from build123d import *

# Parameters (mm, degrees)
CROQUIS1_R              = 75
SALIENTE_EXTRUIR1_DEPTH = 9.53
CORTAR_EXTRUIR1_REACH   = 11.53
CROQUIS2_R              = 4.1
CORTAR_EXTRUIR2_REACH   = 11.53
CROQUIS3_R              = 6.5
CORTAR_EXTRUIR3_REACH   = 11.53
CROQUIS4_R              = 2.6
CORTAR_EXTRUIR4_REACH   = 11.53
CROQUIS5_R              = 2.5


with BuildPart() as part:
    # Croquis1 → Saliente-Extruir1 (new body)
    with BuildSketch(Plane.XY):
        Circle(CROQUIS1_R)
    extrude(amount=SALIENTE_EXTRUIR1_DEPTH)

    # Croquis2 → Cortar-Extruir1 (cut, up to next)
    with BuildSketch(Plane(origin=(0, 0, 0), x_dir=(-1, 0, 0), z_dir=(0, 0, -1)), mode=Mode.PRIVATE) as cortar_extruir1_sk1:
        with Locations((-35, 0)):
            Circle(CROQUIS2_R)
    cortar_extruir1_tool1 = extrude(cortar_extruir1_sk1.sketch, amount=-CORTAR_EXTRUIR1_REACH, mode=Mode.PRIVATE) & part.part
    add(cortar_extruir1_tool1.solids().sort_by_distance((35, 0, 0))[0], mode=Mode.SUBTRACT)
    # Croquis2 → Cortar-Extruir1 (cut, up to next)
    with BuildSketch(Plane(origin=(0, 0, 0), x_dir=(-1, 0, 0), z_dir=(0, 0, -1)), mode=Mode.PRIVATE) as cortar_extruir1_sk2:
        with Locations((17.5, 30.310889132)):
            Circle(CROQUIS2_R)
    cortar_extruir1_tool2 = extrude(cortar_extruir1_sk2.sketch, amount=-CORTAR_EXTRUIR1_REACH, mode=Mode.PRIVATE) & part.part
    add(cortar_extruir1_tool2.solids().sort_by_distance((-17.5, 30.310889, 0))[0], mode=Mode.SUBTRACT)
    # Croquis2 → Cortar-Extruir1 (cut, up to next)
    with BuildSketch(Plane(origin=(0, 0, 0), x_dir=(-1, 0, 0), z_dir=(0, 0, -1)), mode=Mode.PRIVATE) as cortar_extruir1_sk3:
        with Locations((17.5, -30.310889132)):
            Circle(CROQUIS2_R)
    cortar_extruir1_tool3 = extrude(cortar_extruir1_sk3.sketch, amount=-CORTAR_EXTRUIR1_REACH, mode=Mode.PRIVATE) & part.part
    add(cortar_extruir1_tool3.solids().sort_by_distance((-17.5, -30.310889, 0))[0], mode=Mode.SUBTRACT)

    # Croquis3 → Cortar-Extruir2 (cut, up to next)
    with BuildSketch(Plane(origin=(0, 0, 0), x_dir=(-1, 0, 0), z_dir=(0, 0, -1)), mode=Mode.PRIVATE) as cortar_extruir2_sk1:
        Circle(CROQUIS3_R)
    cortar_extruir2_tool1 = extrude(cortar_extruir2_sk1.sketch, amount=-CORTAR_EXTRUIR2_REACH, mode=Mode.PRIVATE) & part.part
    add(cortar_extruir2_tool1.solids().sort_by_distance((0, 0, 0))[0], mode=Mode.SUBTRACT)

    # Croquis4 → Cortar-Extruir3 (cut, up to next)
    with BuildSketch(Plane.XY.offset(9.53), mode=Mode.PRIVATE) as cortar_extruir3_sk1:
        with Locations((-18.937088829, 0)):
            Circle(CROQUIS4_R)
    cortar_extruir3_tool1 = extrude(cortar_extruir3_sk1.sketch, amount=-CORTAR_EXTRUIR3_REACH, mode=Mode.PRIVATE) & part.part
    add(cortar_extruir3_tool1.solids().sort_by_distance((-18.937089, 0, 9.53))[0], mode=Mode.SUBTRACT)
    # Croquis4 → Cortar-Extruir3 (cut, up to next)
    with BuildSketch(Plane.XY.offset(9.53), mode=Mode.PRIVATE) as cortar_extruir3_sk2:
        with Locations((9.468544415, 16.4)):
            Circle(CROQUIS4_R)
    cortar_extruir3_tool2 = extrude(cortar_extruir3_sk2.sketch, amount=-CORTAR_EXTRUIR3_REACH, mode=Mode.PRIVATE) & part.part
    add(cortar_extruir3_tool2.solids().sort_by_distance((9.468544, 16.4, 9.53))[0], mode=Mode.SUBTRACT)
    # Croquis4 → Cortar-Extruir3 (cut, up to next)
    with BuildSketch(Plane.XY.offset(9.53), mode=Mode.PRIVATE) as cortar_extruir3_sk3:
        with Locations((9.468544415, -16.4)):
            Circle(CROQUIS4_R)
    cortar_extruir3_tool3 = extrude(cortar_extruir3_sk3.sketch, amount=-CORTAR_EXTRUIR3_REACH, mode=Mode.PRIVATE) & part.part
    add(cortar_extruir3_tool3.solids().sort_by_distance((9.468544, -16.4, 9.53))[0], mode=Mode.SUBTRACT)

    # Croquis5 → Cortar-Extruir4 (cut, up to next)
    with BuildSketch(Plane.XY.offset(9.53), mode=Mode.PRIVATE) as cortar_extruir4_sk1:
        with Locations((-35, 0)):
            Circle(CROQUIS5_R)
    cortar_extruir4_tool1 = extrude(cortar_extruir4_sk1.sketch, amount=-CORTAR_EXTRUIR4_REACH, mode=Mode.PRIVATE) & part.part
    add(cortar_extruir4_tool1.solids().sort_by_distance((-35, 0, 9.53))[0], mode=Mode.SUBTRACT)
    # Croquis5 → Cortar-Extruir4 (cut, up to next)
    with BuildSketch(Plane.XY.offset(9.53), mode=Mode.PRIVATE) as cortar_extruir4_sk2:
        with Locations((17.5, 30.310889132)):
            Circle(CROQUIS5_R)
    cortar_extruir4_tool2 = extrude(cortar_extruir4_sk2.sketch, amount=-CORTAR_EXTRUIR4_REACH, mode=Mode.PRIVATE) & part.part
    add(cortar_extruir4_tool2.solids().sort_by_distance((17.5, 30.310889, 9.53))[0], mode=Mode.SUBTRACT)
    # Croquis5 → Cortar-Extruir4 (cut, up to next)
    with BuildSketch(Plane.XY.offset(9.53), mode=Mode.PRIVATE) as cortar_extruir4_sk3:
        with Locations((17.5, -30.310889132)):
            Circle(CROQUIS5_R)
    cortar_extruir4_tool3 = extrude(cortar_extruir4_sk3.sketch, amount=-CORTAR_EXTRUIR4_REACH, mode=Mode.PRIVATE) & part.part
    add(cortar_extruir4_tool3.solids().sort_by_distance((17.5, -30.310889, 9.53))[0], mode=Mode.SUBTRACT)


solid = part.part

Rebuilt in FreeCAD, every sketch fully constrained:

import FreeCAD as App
import Part
import Sketcher
Q = App.Units.Quantity

doc = App.newDocument("Part")
body = doc.addObject("PartDesign::Body", "Body")

# Sketch on XY plane
sketch1 = body.newObject("Sketcher::SketchObject", "Sketch")
sketch1.AttachmentSupport = (doc.getObject("XY_Plane"), [""])
sketch1.MapMode = "FlatFace"
sketch1.addGeometry(Part.Circle(App.Vector(0, 0, 0), App.Vector(0, 0, 1), 75), False)
sketch1.addConstraint([
    Sketcher.Constraint("Coincident", 0, 3, -1, 1),
    Sketcher.Constraint("Diameter", 0, Q("150 mm")),
])
pad1 = body.newObject("PartDesign::Pad", "Pad")
pad1.Profile = sketch1
pad1.Length = 9.53

# Sketch on XY plane
sketch2 = body.newObject("Sketcher::SketchObject", "Sketch001")
sketch2.AttachmentSupport = (doc.getObject("XY_Plane"), [""])
sketch2.MapMode = "FlatFace"
sketch2.addGeometry(Part.Circle(App.Vector(35, 0, 0), App.Vector(0, 0, 1), 4.1), False)
sketch2.addConstraint([
    Sketcher.Constraint("PointOnObject", 0, 3, -1),
    Sketcher.Constraint("Diameter", 0, Q("8.2 mm")),
    Sketcher.Constraint("DistanceX", -1, 1, 0, 3, Q("35 mm")),
])
pocket1 = body.newObject("PartDesign::Pocket", "Pocket")
pocket1.Profile = sketch2
pocket1.Type = "UpToFirst"
pocket1.Reversed = True

# Sketch on XY plane
sketch3 = body.newObject("Sketcher::SketchObject", "Sketch002")
sketch3.AttachmentSupport = (doc.getObject("XY_Plane"), [""])
sketch3.MapMode = "FlatFace"
sketch3.addGeometry(Part.Circle(App.Vector(-17.5, 30.3, 0), App.Vector(0, 0, 1), 4.1), False)
sketch3.addConstraint([
    Sketcher.Constraint("Diameter", 0, Q("8.2 mm")),
    Sketcher.Constraint("DistanceX", 0, 3, -1, 1, Q("17.5 mm")),
    Sketcher.Constraint("DistanceY", -1, 1, 0, 3, Q("30.310889 mm")),
])
pocket2 = body.newObject("PartDesign::Pocket", "Pocket001")
pocket2.Profile = sketch3
pocket2.Type = "UpToFirst"
pocket2.Reversed = True

# Sketch on XY plane
sketch4 = body.newObject("Sketcher::SketchObject", "Sketch003")
sketch4.AttachmentSupport = (doc.getObject("XY_Plane"), [""])
sketch4.MapMode = "FlatFace"
sketch4.addGeometry(Part.Circle(App.Vector(-17.5, -30.3, 0), App.Vector(0, 0, 1), 4.1), False)
sketch4.addConstraint([
    Sketcher.Constraint("Diameter", 0, Q("8.2 mm")),
    Sketcher.Constraint("DistanceX", 0, 3, -1, 1, Q("17.5 mm")),
    Sketcher.Constraint("DistanceY", 0, 3, -1, 1, Q("30.310889 mm")),
])
pocket3 = body.newObject("PartDesign::Pocket", "Pocket002")
pocket3.Profile = sketch4
pocket3.Type = "UpToFirst"
pocket3.Reversed = True

# Sketch on XY plane
sketch5 = body.newObject("Sketcher::SketchObject", "Sketch004")
sketch5.AttachmentSupport = (doc.getObject("XY_Plane"), [""])
sketch5.MapMode = "FlatFace"
sketch5.addGeometry(Part.Circle(App.Vector(0, 0, 0), App.Vector(0, 0, 1), 6), False)
sketch5.addConstraint([
    Sketcher.Constraint("Coincident", 0, 3, -1, 1),
    Sketcher.Constraint("Diameter", 0, Q("13 mm")),
])
pocket4 = body.newObject("PartDesign::Pocket", "Pocket003")
pocket4.Profile = sketch5
pocket4.Type = "UpToFirst"
pocket4.Reversed = True

# Sketch on XY plane
sketch6 = body.newObject("Sketcher::SketchObject", "Sketch005")
sketch6.AttachmentSupport = (doc.getObject("XY_Plane"), [""])
sketch6.MapMode = "FlatFace"
sketch6.AttachmentOffset = App.Placement(App.Vector(0, 0, 9.53), App.Rotation())
sketch6.addGeometry(Part.Circle(App.Vector(-18.9, 0, 0), App.Vector(0, 0, 1), 2.6), False)
sketch6.addConstraint([
    Sketcher.Constraint("PointOnObject", 0, 3, -1),
    Sketcher.Constraint("Diameter", 0, Q("5.2 mm")),
    Sketcher.Constraint("DistanceX", 0, 3, -1, 1, Q("18.937089 mm")),
])
pocket5 = body.newObject("PartDesign::Pocket", "Pocket004")
pocket5.Profile = sketch6
pocket5.Type = "UpToFirst"

# Sketch on XY plane
sketch7 = body.newObject("Sketcher::SketchObject", "Sketch006")
sketch7.AttachmentSupport = (doc.getObject("XY_Plane"), [""])
sketch7.MapMode = "FlatFace"
sketch7.AttachmentOffset = App.Placement(App.Vector(0, 0, 9.53), App.Rotation())
sketch7.addGeometry(Part.Circle(App.Vector(9.5, 16.4, 0), App.Vector(0, 0, 1), 2.6), False)
sketch7.addConstraint([
    Sketcher.Constraint("Diameter", 0, Q("5.2 mm")),
    Sketcher.Constraint("DistanceY", -1, 1, 0, 3, Q("16.4 mm")),
    Sketcher.Constraint("DistanceX", -1, 1, 0, 3, Q("9.468544 mm")),
])
pocket6 = body.newObject("PartDesign::Pocket", "Pocket005")
pocket6.Profile = sketch7
pocket6.Type = "UpToFirst"

# Sketch on XY plane
sketch8 = body.newObject("Sketcher::SketchObject", "Sketch007")
sketch8.AttachmentSupport = (doc.getObject("XY_Plane"), [""])
sketch8.MapMode = "FlatFace"
sketch8.AttachmentOffset = App.Placement(App.Vector(0, 0, 9.53), App.Rotation())
sketch8.addGeometry(Part.Circle(App.Vector(9.5, -16.4, 0), App.Vector(0, 0, 1), 2.6), False)
sketch8.addConstraint([
    Sketcher.Constraint("Diameter", 0, Q("5.2 mm")),
    Sketcher.Constraint("DistanceY", 0, 3, -1, 1, Q("16.4 mm")),
    Sketcher.Constraint("DistanceX", -1, 1, 0, 3, Q("9.468544 mm")),
])
pocket7 = body.newObject("PartDesign::Pocket", "Pocket006")
pocket7.Profile = sketch8
pocket7.Type = "UpToFirst"

# Sketch on XY plane
sketch9 = body.newObject("Sketcher::SketchObject", "Sketch008")
sketch9.AttachmentSupport = (doc.getObject("XY_Plane"), [""])
sketch9.MapMode = "FlatFace"
sketch9.AttachmentOffset = App.Placement(App.Vector(0, 0, 9.53), App.Rotation())
sketch9.addGeometry(Part.Circle(App.Vector(-35, 0, 0), App.Vector(0, 0, 1), 2.5), False)
sketch9.addConstraint([
    Sketcher.Constraint("PointOnObject", 0, 3, -1),
    Sketcher.Constraint("Diameter", 0, Q("5 mm")),
    Sketcher.Constraint("DistanceX", 0, 3, -1, 1, Q("35 mm")),
])
pocket8 = body.newObject("PartDesign::Pocket", "Pocket007")
pocket8.Profile = sketch9
pocket8.Type = "UpToFirst"

# Sketch on XY plane
sketch10 = body.newObject("Sketcher::SketchObject", "Sketch009")
sketch10.AttachmentSupport = (doc.getObject("XY_Plane"), [""])
sketch10.MapMode = "FlatFace"
sketch10.AttachmentOffset = App.Placement(App.Vector(0, 0, 9.53), App.Rotation())
sketch10.addGeometry(Part.Circle(App.Vector(17.5, 30.3, 0), App.Vector(0, 0, 1), 2.5), False)
sketch10.addConstraint([
    Sketcher.Constraint("Diameter", 0, Q("5 mm")),
    Sketcher.Constraint("DistanceX", -1, 1, 0, 3, Q("17.5 mm")),
    Sketcher.Constraint("DistanceY", -1, 1, 0, 3, Q("30.310889 mm")),
])
pocket9 = body.newObject("PartDesign::Pocket", "Pocket008")
pocket9.Profile = sketch10
pocket9.Type = "UpToFirst"

# Sketch on XY plane
sketch11 = body.newObject("Sketcher::SketchObject", "Sketch010")
sketch11.AttachmentSupport = (doc.getObject("XY_Plane"), [""])
sketch11.MapMode = "FlatFace"
sketch11.AttachmentOffset = App.Placement(App.Vector(0, 0, 9.53), App.Rotation())
sketch11.addGeometry(Part.Circle(App.Vector(17.5, -30.3, 0), App.Vector(0, 0, 1), 2.5), False)
sketch11.addConstraint([
    Sketcher.Constraint("Diameter", 0, Q("5 mm")),
    Sketcher.Constraint("DistanceX", -1, 1, 0, 3, Q("17.5 mm")),
    Sketcher.Constraint("DistanceY", 0, 3, -1, 1, Q("30.310889 mm")),
])
pocket10 = body.newObject("PartDesign::Pocket", "Pocket009")
pocket10.Profile = sketch11
pocket10.Type = "UpToFirst"

doc.recompute()
